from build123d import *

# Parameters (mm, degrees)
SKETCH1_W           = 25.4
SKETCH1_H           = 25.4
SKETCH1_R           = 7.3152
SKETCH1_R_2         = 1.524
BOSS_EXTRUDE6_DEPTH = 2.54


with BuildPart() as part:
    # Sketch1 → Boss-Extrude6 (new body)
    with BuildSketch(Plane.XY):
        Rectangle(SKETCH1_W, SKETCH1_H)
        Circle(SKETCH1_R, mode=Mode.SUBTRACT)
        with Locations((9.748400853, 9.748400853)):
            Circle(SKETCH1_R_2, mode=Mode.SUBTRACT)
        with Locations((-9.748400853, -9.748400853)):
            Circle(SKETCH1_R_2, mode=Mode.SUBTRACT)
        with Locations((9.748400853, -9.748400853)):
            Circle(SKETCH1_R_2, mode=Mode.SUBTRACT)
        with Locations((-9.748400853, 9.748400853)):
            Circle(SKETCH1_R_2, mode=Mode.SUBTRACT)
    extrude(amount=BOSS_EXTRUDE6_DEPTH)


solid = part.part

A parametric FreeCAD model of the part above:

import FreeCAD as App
import Part
import Sketcher
Q = App.Units.Quantity


def add_polygon(sketch, points):
    """Adds a closed chain of lines whose ends are joined by coincident constraints."""
    first, n = sketch.GeometryCount, len(points)
    for a, b in zip(points, points[1:] + points[:1]):
        sketch.addGeometry(Part.LineSegment(App.Vector(*a, 0), App.Vector(*b, 0)), False)
    for i in range(n):
        sketch.addConstraint(Sketcher.Constraint("Coincident", first + i, 2, first + (i + 1) % n, 1))

doc = App.newDocument("Part")
body = doc.addObject("PartDesign::Body", "Body")

sketch1 = body.newObject("Sketcher::SketchObject", "Sketch")
sketch1.AttachmentSupport = (doc.getObject("XY_Plane"), [""])
sketch1.MapMode = "FlatFace"
add_polygon(sketch1, [(-12.7, 12.7), (-12.7, -12.7), (12.7, -12.7), (12.7, 12.7)])
sketch1.addGeometry(Part.Circle(App.Vector(-9.7, -9.7, 0), App.Vector(0, 0, 1), 1.5), False)
sketch1.addGeometry(Part.Circle(App.Vector(9.7, -9.7, 0), App.Vector(0, 0, 1), 1.5), False)
sketch1.addGeometry(Part.Circle(App.Vector(-9.7, 9.7, 0), App.Vector(0, 0, 1), 1.5), False)
sketch1.addGeometry(Part.Circle(App.Vector(0, 0, 0), App.Vector(0, 0, 1), 7.3), False)
sketch1.addGeometry(Part.Circle(App.Vector(9.7, 9.7, 0), App.Vector(0, 0, 1), 1.5), False)
sketch1.addConstraint(Sketcher.Constraint("Vertical", 0))
sketch1.addConstraint(Sketcher.Constraint("Horizontal", 1))
sketch1.addConstraint(Sketcher.Constraint("Vertical", 2))
sketch1.addConstraint(Sketcher.Constraint("Horizontal", 3))
sketch1.addConstraint(Sketcher.Constraint("Coincident", 7, 3, -1, 1))
sketch1.addConstraint(Sketcher.Constraint("Equal", 4, 5))
sketch1.addConstraint(Sketcher.Constraint("Equal", 5, 6))
sketch1.addConstraint(Sketcher.Constraint("Equal", 6, 8))
sketch1.addConstraint(Sketcher.Constraint("Symmetric", 5, 3, 6, 3, -1, 1))
sketch1.addConstraint(Sketcher.Constraint("Symmetric", 4, 3, 8, 3, -1, 1))
sketch1.addConstraint(Sketcher.Constraint("Symmetric", 0, 2, 2, 2, -1, 1))
sketch1.addConstraint(Sketcher.Constraint("Symmetric", 4, 3, 5, 3, -2))
sketch1.addConstraint(Sketcher.Constraint("Equal", 3, 0))
sketch1.addConstraint(Sketcher.Constraint("Diameter", 4, Q("0.12 in")))
sketch1.addConstraint(Sketcher.Constraint("DistanceX", 1, 1, 1, 2, Q("1 in")))
sketch1.addConstraint(Sketcher.Constraint("Diameter", 7, Q("0.576 in")))
sketch1.addConstraint(Sketcher.Constraint("DistanceX", 4, 3, -1, 1, 9.748401))
sketch1.addConstraint(Sketcher.Constraint("DistanceY", 4, 3, -1, 1, 9.748401))
pad1 = body.newObject("PartDesign::Pad", "Pad")
pad1.Profile = sketch1
pad1.Length = Q("0.1 in")

doc.recompute()
